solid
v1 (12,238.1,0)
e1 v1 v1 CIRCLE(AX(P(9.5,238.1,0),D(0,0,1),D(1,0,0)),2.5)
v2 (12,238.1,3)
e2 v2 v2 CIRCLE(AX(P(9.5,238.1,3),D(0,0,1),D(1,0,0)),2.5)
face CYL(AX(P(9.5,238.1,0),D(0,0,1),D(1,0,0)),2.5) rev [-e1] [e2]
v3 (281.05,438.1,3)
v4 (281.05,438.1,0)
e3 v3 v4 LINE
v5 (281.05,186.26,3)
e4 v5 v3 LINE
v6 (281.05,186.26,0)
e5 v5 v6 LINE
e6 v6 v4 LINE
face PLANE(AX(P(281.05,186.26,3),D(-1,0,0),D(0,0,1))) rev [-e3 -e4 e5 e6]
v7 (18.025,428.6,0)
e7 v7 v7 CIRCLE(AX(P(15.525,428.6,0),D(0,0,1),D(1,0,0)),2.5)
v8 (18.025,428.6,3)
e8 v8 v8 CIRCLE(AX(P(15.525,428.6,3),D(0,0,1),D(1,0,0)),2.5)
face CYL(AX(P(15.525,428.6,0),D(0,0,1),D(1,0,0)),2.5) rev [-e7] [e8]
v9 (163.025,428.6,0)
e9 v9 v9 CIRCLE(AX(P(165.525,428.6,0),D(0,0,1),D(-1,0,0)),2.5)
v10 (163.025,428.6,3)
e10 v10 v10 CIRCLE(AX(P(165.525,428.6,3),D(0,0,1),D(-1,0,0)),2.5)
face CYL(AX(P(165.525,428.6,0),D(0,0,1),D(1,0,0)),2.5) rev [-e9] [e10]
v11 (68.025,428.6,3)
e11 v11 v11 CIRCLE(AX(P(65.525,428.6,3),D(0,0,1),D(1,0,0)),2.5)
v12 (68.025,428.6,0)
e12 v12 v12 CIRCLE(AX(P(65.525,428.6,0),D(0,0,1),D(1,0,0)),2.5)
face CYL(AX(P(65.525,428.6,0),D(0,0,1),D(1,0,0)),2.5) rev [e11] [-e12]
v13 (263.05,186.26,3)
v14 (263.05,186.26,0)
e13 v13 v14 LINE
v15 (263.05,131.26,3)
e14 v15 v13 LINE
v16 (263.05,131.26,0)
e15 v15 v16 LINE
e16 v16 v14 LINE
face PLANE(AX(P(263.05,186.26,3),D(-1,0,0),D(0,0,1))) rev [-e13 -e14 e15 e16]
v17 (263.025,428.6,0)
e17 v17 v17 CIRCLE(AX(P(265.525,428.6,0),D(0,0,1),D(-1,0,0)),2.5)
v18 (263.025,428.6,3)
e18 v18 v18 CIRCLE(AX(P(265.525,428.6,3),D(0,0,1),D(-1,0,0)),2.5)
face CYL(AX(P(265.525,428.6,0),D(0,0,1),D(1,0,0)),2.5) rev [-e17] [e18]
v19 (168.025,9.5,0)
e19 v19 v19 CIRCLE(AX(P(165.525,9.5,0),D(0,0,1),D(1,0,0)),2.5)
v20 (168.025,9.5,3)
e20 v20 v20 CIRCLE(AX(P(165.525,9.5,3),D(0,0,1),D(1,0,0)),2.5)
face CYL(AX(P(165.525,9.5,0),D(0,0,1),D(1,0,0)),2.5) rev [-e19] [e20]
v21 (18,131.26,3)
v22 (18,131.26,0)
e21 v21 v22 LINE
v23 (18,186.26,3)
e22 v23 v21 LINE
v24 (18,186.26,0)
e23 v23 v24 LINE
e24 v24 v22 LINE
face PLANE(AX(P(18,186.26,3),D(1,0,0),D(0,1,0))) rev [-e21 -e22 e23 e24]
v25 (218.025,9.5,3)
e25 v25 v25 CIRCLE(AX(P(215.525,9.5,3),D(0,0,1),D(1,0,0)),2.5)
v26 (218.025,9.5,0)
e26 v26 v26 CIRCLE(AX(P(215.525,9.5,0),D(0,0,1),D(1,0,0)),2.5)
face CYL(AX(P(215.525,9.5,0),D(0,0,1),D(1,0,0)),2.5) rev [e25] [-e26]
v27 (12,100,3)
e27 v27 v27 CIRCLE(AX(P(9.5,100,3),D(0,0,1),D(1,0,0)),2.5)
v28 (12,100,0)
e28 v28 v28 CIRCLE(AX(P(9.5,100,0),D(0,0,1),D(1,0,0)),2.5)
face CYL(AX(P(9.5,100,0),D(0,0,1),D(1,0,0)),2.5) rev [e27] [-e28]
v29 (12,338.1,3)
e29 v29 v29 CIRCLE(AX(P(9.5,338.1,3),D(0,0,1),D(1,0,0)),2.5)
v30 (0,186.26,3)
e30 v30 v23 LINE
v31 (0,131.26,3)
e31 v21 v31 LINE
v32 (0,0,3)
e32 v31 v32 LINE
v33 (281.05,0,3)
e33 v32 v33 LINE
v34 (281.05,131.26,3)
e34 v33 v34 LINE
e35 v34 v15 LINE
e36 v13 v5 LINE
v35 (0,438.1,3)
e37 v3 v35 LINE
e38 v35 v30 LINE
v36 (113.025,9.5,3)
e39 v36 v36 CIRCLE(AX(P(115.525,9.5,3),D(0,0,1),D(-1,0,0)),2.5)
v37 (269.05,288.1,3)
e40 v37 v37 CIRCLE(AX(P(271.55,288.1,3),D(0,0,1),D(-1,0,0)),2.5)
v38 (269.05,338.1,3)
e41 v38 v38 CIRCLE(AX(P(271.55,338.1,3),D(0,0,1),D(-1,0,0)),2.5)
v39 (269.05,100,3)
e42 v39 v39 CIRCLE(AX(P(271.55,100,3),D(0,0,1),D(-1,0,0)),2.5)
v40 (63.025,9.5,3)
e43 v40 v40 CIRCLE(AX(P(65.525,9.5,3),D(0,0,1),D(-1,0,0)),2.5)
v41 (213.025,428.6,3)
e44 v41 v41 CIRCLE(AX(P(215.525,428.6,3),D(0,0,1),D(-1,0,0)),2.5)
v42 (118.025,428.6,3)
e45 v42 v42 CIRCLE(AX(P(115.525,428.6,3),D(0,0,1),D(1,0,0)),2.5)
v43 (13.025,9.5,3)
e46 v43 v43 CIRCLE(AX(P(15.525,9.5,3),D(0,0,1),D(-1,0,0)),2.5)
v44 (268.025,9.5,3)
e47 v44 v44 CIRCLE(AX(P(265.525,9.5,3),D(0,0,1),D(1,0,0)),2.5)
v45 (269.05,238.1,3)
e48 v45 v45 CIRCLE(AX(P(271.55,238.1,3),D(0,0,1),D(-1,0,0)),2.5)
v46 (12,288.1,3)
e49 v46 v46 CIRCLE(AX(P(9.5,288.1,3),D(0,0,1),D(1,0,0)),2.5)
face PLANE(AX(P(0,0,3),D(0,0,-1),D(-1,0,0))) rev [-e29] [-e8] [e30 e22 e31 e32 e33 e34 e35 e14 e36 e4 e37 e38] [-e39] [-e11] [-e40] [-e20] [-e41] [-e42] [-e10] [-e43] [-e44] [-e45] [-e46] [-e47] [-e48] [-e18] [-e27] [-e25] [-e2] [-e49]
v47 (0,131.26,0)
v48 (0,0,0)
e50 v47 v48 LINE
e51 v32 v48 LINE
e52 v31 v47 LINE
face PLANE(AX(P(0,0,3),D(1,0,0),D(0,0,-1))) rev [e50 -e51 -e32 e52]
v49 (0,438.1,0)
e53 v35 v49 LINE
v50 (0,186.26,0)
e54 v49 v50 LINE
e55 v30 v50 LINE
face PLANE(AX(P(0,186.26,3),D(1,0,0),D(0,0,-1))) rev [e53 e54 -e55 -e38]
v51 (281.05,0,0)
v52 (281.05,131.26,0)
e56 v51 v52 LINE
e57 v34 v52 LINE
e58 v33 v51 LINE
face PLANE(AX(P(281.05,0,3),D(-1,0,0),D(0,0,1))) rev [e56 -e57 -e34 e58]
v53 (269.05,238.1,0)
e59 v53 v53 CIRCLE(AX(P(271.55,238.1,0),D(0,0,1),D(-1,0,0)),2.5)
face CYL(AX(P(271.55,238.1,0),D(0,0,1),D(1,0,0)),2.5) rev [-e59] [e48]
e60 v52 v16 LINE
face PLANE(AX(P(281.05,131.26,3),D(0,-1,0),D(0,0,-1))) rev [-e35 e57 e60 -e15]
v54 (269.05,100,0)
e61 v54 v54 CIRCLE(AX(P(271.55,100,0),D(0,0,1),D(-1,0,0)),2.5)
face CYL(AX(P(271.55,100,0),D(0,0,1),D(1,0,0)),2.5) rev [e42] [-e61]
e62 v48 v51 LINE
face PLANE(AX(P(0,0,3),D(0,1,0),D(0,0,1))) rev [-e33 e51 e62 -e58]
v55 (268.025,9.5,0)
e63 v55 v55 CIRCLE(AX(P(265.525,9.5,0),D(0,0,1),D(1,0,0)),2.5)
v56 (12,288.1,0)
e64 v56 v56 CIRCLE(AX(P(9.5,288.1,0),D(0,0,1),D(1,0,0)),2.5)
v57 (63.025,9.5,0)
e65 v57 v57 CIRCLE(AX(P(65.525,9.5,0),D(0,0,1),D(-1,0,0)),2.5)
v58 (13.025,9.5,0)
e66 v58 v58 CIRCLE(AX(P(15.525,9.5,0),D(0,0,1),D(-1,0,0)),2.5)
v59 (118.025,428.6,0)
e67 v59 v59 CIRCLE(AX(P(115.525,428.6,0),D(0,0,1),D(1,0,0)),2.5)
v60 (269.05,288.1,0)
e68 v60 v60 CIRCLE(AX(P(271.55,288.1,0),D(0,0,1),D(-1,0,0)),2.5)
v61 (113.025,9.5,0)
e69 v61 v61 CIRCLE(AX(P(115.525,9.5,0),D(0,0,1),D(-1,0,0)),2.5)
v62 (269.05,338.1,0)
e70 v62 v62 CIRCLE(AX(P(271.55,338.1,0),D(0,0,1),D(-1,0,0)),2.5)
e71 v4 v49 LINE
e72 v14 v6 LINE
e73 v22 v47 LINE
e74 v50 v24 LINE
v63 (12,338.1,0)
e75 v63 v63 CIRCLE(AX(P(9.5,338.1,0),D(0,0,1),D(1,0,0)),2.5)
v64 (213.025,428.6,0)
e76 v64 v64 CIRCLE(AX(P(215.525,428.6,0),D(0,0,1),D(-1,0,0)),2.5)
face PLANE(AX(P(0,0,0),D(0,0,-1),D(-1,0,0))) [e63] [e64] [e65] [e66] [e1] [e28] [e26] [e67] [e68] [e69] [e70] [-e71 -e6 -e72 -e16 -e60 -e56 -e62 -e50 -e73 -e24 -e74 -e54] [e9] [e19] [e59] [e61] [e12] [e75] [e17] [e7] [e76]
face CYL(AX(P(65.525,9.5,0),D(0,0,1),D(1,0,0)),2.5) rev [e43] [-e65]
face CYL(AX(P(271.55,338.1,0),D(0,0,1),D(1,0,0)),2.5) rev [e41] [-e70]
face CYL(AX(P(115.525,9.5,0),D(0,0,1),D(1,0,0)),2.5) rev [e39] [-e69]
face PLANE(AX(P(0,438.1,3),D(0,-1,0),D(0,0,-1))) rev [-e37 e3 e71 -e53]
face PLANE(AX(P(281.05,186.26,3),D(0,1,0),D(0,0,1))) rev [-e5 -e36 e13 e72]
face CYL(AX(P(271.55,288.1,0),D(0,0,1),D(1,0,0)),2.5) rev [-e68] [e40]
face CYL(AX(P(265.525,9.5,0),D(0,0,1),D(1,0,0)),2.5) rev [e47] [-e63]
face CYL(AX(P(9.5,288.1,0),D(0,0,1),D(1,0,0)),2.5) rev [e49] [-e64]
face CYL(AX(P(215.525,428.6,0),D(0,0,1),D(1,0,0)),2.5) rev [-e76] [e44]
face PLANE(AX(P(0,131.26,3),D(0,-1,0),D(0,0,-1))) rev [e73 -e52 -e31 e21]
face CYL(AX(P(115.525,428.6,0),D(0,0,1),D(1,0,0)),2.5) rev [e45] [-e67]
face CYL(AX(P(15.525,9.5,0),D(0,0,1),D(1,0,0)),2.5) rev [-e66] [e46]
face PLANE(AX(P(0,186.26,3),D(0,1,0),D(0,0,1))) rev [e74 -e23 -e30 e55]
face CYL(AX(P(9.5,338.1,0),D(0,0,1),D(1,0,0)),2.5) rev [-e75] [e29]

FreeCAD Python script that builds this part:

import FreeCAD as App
import Part
import Sketcher

V = App.Vector
Q = App.Units.Quantity

doc = App.newDocument("Part")
body = doc.addObject("PartDesign::Body", "Body")

sketch1 = body.newObject("Sketcher::SketchObject", "Sketch")
sketch1.AttachmentSupport = (doc.getObject("XY_Plane"), [""])
sketch1.MapMode = "FlatFace"
sketch1.addGeometry([
    Part.LineSegment(V(0, 438.1, 0), V(0, 186.26, 0)),
    Part.LineSegment(V(0, 186.26, 0), V(18, 186.26, 0)),
    Part.LineSegment(V(18, 186.26, 0), V(18, 131.26, 0)),
    Part.LineSegment(V(18, 131.26, 0), V(0, 131.26, 0)),
    Part.LineSegment(V(0, 131.26, 0), V(0, 0, 0)),
    Part.LineSegment(V(0, 0, 0), V(281.05, 0, 0)),
    Part.LineSegment(V(281.05, 0, 0), V(281.05, 131.26, 0)),
    Part.LineSegment(V(281.05, 131.26, 0), V(263.05, 131.26, 0)),
    Part.LineSegment(V(263.05, 131.26, 0), V(263.05, 186.26, 0)),
    Part.LineSegment(V(263.05, 186.26, 0), V(281.05, 186.26, 0)),
    Part.LineSegment(V(281.05, 186.26, 0), V(281.05, 438.1, 0)),
    Part.LineSegment(V(281.05, 438.1, 0), V(0, 438.1, 0)),
], False)
sketch1.addConstraint([
    Sketcher.Constraint("Coincident", 0, 2, 1, 1),
    Sketcher.Constraint("Coincident", 1, 2, 2, 1),
    Sketcher.Constraint("Coincident", 2, 2, 3, 1),
    Sketcher.Constraint("Coincident", 3, 2, 4, 1),
    Sketcher.Constraint("Coincident", 4, 2, 5, 1),
    Sketcher.Constraint("Coincident", 5, 2, 6, 1),
    Sketcher.Constraint("Coincident", 6, 2, 7, 1),
    Sketcher.Constraint("Coincident", 7, 2, 8, 1),
    Sketcher.Constraint("Coincident", 8, 2, 9, 1),
    Sketcher.Constraint("Coincident", 9, 2, 10, 1),
    Sketcher.Constraint("Coincident", 10, 2, 11, 1),
    Sketcher.Constraint("Coincident", 11, 2, 0, 1),
    Sketcher.Constraint("Vertical", 0),
    Sketcher.Constraint("Horizontal", 1),
    Sketcher.Constraint("Vertical", 2),
    Sketcher.Constraint("Horizontal", 3),
    Sketcher.Constraint("Vertical", 4),
    Sketcher.Constraint("Horizontal", 5),
    Sketcher.Constraint("Vertical", 6),
    Sketcher.Constraint("Horizontal", 7),
    Sketcher.Constraint("Vertical", 8),
    Sketcher.Constraint("Horizontal", 9),
    Sketcher.Constraint("Vertical", 10),
    Sketcher.Constraint("Horizontal", 11),
    Sketcher.Constraint("Coincident", 4, 2, -1, 1),
    Sketcher.Constraint("PointOnObject", 0, 2, -2),
    Sketcher.Constraint("Horizontal", 3, 2, 6, 2),
    Sketcher.Constraint("Horizontal", 1, 2, 8, 2),
    Sketcher.Constraint("Vertical", 6, 2, 9, 2),
    Sketcher.Constraint("Equal", 3, 7),
    Sketcher.Constraint("DistanceX", 1, 1, 1, 2, Q("18 mm")),
    Sketcher.Constraint("DistanceY", 2, 2, 2, 1, Q("55 mm")),
    Sketcher.Constraint("DistanceX", 5, 1, 5, 2, Q("281.05 mm")),
    Sketcher.Constraint("DistanceY", 0, 2, 0, 1, Q("251.84 mm")),
    Sketcher.Constraint("DistanceY", 4, 2, 4, 1, Q("131.26 mm")),
])
pad1 = body.newObject("PartDesign::Pad", "Pad")
pad1.Profile = sketch1
pad1.Length = 3

sketch2 = body.newObject("Sketcher::SketchObject", "Sketch001")
sketch2.AttachmentSupport = (doc.getObject("XY_Plane"), [""])
sketch2.MapMode = "FlatFace"
sketch2.AttachmentOffset = App.Placement(V(0, 0, 3), App.Rotation())
sketch2.addGeometry([
    Part.Circle(V(65.525, 428.6, 0), V(0, 0, 1), 2.5),
    Part.Circle(V(115.525, 428.6, 0), V(0, 0, 1), 2.5),
    Part.Circle(V(15.525, 428.6, 0), V(0, 0, 1), 2.5),
    Part.Circle(V(265.525, 428.6, 0), V(0, 0, 1), 2.5),
    Part.Circle(V(165.525, 428.6, 0), V(0, 0, 1), 2.5),
    Part.Circle(V(215.525, 428.6, 0), V(0, 0, 1), 2.5),
    Part.Circle(V(215.525, 9.5, 0), V(0, 0, 1), 2.5),
    Part.Circle(V(165.525, 9.5, 0), V(0, 0, 1), 2.5),
    Part.Circle(V(265.525, 9.5, 0), V(0, 0, 1), 2.5),
    Part.Circle(V(15.525, 9.5, 0), V(0, 0, 1), 2.5),
    Part.Circle(V(115.525, 9.5, 0), V(0, 0, 1), 2.5),
    Part.Circle(V(65.525, 9.5, 0), V(0, 0, 1), 2.5),
    Part.Circle(V(9.5, 338.1, 0), V(0, 0, 1), 2.5),
    Part.Circle(V(9.5, 288.1, 0), V(0, 0, 1), 2.5),
    Part.Circle(V(9.5, 238.1, 0), V(0, 0, 1), 2.5),
    Part.Circle(V(9.5, 100, 0), V(0, 0, 1), 2.5),
    Part.Circle(V(271.55, 100, 0), V(0, 0, 1), 2.5),
    Part.Circle(V(271.55, 238.1, 0), V(0, 0, 1), 2.5),
    Part.Circle(V(271.55, 288.1, 0), V(0, 0, 1), 2.5),
    Part.Circle(V(271.55, 338.1, 0), V(0, 0, 1), 2.5),
], False)
sketch2.addConstraint([
    Sketcher.Constraint("Equal", 0, 1),
    Sketcher.Constraint("Equal", 1, 2),
    Sketcher.Constraint("Equal", 2, 3),
    Sketcher.Constraint("Equal", 3, 4),
    Sketcher.Constraint("Equal", 4, 5),
    Sketcher.Constraint("Equal", 5, 6),
    Sketcher.Constraint("Equal", 6, 7),
    Sketcher.Constraint("Equal", 7, 8),
    Sketcher.Constraint("Equal", 8, 9),
    Sketcher.Constraint("Equal", 9, 10),
    Sketcher.Constraint("Equal", 10, 11),
    Sketcher.Constraint("Equal", 11, 12),
    Sketcher.Constraint("Equal", 12, 13),
    Sketcher.Constraint("Equal", 13, 14),
    Sketcher.Constraint("Equal", 14, 15),
    Sketcher.Constraint("Equal", 15, 16),
    Sketcher.Constraint("Equal", 16, 17),
    Sketcher.Constraint("Equal", 17, 18),
    Sketcher.Constraint("Equal", 18, 19),
    Sketcher.Constraint("Horizontal", 0, 3, 1, 3),
    Sketcher.Constraint("Horizontal", 1, 3, 2, 3),
    Sketcher.Constraint("Horizontal", 2, 3, 3, 3),
    Sketcher.Constraint("Horizontal", 3, 3, 4, 3),
    Sketcher.Constraint("Horizontal", 4, 3, 5, 3),
    Sketcher.Constraint("Horizontal", 6, 3, 7, 3),
    Sketcher.Constraint("Horizontal", 7, 3, 8, 3),
    Sketcher.Constraint("Horizontal", 8, 3, 9, 3),
    Sketcher.Constraint("Horizontal", 9, 3, 10, 3),
    Sketcher.Constraint("Horizontal", 10, 3, 11, 3),
    Sketcher.Constraint("Horizontal", 15, 3, 16, 3),
    Sketcher.Constraint("Horizontal", 14, 3, 17, 3),
    Sketcher.Constraint("Horizontal", 13, 3, 18, 3),
    Sketcher.Constraint("Horizontal", 12, 3, 19, 3),
    Sketcher.Constraint("Vertical", 5, 3, 6, 3),
    Sketcher.Constraint("Vertical", 4, 3, 7, 3),
    Sketcher.Constraint("Vertical", 3, 3, 8, 3),
    Sketcher.Constraint("Vertical", 2, 3, 9, 3),
    Sketcher.Constraint("Vertical", 1, 3, 10, 3),
    Sketcher.Constraint("Vertical", 0, 3, 11, 3),
    Sketcher.Constraint("Vertical", 12, 3, 13, 3),
    Sketcher.Constraint("Vertical", 13, 3, 14, 3),
    Sketcher.Constraint("Vertical", 14, 3, 15, 3),
    Sketcher.Constraint("Vertical", 16, 3, 17, 3),
    Sketcher.Constraint("Vertical", 17, 3, 18, 3),
    Sketcher.Constraint("Vertical", 18, 3, 19, 3),
    Sketcher.Constraint("Diameter", 0, Q("5 mm")),
    Sketcher.Constraint("DistanceY", -1, 1, 15, 3, Q("100 mm")),
    Sketcher.Constraint("DistanceX", 0, 3, 1, 3, Q("50 mm")),
    Sketcher.Constraint("DistanceX", 2, 3, 0, 3, Q("50 mm")),
    Sketcher.Constraint("DistanceX", 1, 3, 3, 3, Q("150 mm")),
    Sketcher.Constraint("DistanceX", 1, 3, 4, 3, Q("50 mm")),
    Sketcher.Constraint("DistanceX", 5, 3, 3, 3, Q("50 mm")),
    Sketcher.Constraint("DistanceY", 13, 3, 12, 3, Q("50 mm")),
    Sketcher.Constraint("DistanceY", 14, 3, 13, 3, Q("50 mm")),
    Sketcher.Constraint("DistanceY", -1, 1, 0, 3, Q("428.6 mm")),
    Sketcher.Constraint("DistanceY", -1, 1, 6, 3, Q("9.5 mm")),
    Sketcher.Constraint("DistanceX", -1, 1, 12, 3, Q("9.5 mm")),
    Sketcher.Constraint("DistanceY", -1, 1, 12, 3, Q("338.1 mm")),
    Sketcher.Constraint("DistanceX", -1, 1, 16, 3, Q("271.55 mm")),
    Sketcher.Constraint("DistanceX", -1, 1, 0, 3, Q("65.525 mm")),
])
pocket1 = body.newObject("PartDesign::Pocket", "Pocket")
pocket1.Profile = sketch2
pocket1.Type = "ThroughAll"

doc.recompute()
